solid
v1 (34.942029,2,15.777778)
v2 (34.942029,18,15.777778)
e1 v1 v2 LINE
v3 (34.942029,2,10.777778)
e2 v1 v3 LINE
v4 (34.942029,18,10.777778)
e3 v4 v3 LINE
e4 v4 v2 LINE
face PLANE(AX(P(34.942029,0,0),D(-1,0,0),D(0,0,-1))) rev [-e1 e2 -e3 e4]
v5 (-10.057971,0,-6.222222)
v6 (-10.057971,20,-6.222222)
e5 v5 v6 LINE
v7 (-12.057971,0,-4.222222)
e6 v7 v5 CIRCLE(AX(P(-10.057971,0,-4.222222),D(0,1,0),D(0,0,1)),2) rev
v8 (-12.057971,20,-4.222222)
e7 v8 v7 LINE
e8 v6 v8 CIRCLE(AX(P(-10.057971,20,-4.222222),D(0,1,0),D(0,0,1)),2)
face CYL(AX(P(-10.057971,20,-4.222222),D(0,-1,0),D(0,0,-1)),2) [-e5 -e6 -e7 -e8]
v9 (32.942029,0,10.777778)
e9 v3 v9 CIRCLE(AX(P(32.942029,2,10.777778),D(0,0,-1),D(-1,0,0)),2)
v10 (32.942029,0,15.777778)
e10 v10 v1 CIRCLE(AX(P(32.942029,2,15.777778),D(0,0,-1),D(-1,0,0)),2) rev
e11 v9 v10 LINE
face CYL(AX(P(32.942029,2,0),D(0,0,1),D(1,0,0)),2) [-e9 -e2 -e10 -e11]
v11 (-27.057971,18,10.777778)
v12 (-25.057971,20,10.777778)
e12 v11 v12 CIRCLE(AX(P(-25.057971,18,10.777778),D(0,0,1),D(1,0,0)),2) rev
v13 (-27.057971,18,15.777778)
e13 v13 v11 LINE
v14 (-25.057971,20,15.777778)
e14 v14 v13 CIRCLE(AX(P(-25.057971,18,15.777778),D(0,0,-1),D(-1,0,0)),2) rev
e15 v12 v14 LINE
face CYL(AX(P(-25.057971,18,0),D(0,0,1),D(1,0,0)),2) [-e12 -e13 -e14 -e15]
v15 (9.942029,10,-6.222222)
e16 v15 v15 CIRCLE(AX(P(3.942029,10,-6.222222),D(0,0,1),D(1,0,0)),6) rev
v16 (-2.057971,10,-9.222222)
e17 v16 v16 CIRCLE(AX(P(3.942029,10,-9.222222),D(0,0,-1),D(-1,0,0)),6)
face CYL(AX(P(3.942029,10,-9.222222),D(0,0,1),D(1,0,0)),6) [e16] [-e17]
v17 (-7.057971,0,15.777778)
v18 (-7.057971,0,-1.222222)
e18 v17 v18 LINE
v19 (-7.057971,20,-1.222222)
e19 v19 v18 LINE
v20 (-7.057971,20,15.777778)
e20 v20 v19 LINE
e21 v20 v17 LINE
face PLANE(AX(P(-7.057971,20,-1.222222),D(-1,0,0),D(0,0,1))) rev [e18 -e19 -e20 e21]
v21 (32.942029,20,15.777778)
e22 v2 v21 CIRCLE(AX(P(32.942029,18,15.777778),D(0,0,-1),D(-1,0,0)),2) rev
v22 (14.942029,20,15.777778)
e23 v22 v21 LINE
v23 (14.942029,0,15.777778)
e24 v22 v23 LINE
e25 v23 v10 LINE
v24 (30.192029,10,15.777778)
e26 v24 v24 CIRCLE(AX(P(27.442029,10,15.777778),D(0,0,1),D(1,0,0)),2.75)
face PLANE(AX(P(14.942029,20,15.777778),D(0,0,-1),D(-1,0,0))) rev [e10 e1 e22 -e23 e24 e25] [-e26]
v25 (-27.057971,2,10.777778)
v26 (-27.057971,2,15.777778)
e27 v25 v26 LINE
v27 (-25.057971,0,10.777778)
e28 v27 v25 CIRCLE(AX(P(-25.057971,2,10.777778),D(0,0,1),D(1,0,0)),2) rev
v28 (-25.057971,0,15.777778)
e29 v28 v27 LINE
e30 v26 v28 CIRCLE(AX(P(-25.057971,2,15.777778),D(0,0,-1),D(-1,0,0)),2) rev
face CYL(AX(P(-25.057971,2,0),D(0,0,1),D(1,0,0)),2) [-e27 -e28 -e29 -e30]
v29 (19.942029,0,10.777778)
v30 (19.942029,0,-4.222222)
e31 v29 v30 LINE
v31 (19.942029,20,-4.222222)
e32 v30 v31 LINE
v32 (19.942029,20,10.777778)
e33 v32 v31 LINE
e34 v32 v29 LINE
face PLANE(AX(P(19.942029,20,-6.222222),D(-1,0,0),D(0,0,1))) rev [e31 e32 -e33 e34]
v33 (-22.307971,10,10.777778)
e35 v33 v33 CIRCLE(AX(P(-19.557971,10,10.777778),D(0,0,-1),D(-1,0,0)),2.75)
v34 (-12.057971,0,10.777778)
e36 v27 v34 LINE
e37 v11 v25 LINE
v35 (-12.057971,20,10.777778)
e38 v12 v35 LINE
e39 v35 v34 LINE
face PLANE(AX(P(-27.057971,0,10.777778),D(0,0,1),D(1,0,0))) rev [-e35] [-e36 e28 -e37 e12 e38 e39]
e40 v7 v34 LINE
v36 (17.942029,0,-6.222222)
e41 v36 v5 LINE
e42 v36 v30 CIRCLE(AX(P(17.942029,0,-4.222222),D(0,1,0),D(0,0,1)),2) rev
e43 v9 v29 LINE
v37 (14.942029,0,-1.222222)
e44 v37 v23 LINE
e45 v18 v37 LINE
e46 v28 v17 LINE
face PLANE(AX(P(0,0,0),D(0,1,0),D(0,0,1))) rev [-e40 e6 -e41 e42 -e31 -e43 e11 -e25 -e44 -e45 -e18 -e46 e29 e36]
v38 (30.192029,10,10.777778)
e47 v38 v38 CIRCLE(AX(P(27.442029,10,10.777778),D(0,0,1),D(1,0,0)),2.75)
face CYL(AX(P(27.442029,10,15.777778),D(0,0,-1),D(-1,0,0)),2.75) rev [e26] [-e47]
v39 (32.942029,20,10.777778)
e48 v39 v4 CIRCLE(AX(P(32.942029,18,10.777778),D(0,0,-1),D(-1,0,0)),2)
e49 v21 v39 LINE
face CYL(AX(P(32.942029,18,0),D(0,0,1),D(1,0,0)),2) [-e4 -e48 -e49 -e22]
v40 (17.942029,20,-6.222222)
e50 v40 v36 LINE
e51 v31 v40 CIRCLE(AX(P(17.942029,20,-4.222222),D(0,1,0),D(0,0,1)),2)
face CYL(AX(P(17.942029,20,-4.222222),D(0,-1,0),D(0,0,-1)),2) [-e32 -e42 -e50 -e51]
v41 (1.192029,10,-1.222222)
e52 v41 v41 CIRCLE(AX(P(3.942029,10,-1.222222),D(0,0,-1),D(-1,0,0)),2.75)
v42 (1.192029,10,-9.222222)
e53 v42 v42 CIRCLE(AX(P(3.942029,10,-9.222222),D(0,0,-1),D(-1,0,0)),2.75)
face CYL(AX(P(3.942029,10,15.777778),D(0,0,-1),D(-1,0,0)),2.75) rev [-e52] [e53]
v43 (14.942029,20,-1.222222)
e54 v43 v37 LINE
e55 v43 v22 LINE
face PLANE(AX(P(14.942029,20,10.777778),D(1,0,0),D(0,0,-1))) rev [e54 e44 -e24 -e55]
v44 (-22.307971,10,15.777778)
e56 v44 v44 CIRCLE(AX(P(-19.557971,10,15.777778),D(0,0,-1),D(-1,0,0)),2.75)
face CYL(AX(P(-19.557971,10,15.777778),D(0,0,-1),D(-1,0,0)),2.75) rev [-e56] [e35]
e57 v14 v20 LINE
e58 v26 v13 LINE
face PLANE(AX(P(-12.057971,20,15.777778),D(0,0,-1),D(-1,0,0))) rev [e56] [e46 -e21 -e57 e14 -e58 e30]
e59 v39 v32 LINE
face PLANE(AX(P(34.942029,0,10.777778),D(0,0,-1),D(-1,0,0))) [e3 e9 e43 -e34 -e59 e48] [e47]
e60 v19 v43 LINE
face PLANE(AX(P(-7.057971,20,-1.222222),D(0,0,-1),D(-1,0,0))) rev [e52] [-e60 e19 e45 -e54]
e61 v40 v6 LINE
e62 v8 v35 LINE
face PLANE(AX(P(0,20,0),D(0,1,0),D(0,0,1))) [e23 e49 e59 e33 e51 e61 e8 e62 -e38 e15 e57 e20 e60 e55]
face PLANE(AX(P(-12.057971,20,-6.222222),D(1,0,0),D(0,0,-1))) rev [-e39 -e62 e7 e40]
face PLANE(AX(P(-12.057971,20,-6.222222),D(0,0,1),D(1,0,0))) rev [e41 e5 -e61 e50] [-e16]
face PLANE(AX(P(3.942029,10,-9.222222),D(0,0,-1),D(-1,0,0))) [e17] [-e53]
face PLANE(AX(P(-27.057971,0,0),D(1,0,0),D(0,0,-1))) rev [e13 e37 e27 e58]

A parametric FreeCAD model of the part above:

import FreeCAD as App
import Part
import Sketcher

V = App.Vector


def edges_at(feature, points):
    """Names of the edges that pass closest to the given points."""
    edges = feature.Shape.Edges
    near = lambda p: min(range(len(edges)), key=lambda i: edges[i].distToShape(Part.Vertex(*p))[0])
    return sorted({f"Edge{near(p) + 1}" for p in points})


def add_polygon(sketch, points):
    """Adds a closed chain of lines whose ends are joined by coincident constraints."""
    first, n = sketch.GeometryCount, len(points)
    for a, b in zip(points, points[1:] + points[:1]):
        sketch.addGeometry(Part.LineSegment(App.Vector(*a, 0), App.Vector(*b, 0)), False)
    for i in range(n):
        sketch.addConstraint(Sketcher.Constraint("Coincident", first + i, 2, first + (i + 1) % n, 1))

doc = App.newDocument("Part")
body = doc.addObject("PartDesign::Body", "Body")

sketch1 = body.newObject("Sketcher::SketchObject", "Sketch")
sketch1.AttachmentSupport = (doc.getObject("XZ_Plane"), [""])
sketch1.MapMode = "FlatFace"
add_polygon(sketch1, [(19.942029, -6.222222), (-12.057971, -6.222222), (-12.057971, 15.777778), (-7.057971, 15.777778), (-7.057971, -1.222222), (14.942029, -1.222222), (14.942029, 15.777778), (19.942029, 15.777778)])
sketch1.addConstraint(Sketcher.Constraint("Horizontal", 0))
sketch1.addConstraint(Sketcher.Constraint("Vertical", 1))
sketch1.addConstraint(Sketcher.Constraint("Horizontal", 2))
sketch1.addConstraint(Sketcher.Constraint("Vertical", 3))
sketch1.addConstraint(Sketcher.Constraint("Horizontal", 4))
sketch1.addConstraint(Sketcher.Constraint("Vertical", 5))
sketch1.addConstraint(Sketcher.Constraint("Horizontal", 6))
sketch1.addConstraint(Sketcher.Constraint("Vertical", 7))
sketch1.addConstraint(Sketcher.Constraint("Horizontal", 2, 2, 5, 2))
sketch1.addConstraint(Sketcher.Constraint("Equal", 2, 6))
sketch1.addConstraint(Sketcher.Constraint("Equal", 4, 1))
sketch1.addConstraint(Sketcher.Constraint("DistanceX", 0, 2, 0, 1, 32.0))
sketch1.addConstraint(Sketcher.Constraint("DistanceX", 2, 1, 2, 2, 5.0))
sketch1.addConstraint(Sketcher.Constraint("DistanceY", 3, 2, 3, 1, 17.0))
sketch1.addConstraint(Sketcher.Constraint("DistanceX", 0, 2, -1, 1, 12.057971))
sketch1.addConstraint(Sketcher.Constraint("DistanceY", 0, 2, -1, 1, 6.222222))
pad1 = body.newObject("PartDesign::Pad", "Pad")
pad1.Profile = sketch1
pad1.Length = 20
pad1.Reversed = True

sketch2 = body.newObject("Sketcher::SketchObject", "Sketch001")
sketch2.AttachmentSupport = (doc.getObject("XY_Plane"), [""])
sketch2.MapMode = "FlatFace"
sketch2.AttachmentOffset = App.Placement(V(0, 0, -6.222222), App.Rotation())
sketch2.addGeometry(Part.Circle(V(3.942029, 10, 0), V(0, 0, 1), 2.75), False)
sketch2.addConstraint(Sketcher.Constraint("Diameter", 0, 5.5))
sketch2.addConstraint(Sketcher.Constraint("DistanceY", -1, 1, 0, 3, 10.0))
sketch2.addConstraint(Sketcher.Constraint("DistanceX", -1, 1, 0, 3, 3.942029))
pocket1 = body.newObject("PartDesign::Pocket", "Pocket")
pocket1.Profile = sketch2
pocket1.Type = "ThroughAll"
pocket1.Reversed = True

sketch3 = body.newObject("Sketcher::SketchObject", "Sketch002")
sketch3.AttachmentSupport = (doc.getObject("YZ_Plane"), [""])
sketch3.MapMode = "FlatFace"
sketch3.AttachmentOffset = App.Placement(V(0, 0, -12.057971), App.Rotation())
add_polygon(sketch3, [(20, 10.777778), (0, 10.777778), (0, 15.777778), (20, 15.777778)])
sketch3.addConstraint(Sketcher.Constraint("Horizontal", 0))
sketch3.addConstraint(Sketcher.Constraint("Vertical", 1))
sketch3.addConstraint(Sketcher.Constraint("Horizontal", 2))
sketch3.addConstraint(Sketcher.Constraint("Vertical", 3))
sketch3.addConstraint(Sketcher.Constraint("PointOnObject", 0, 2, -2))
sketch3.addConstraint(Sketcher.Constraint("DistanceX", 0, 2, 0, 1, 20.0))
sketch3.addConstraint(Sketcher.Constraint("DistanceY", 1, 1, 1, 2, 5.0))
sketch3.addConstraint(Sketcher.Constraint("DistanceY", -1, 1, 0, 2, 10.777778))
pad2 = body.newObject("PartDesign::Pad", "Pad001")
pad2.Profile = sketch3
pad2.Length = 15
pad2.Reversed = True

sketch4 = body.newObject("Sketcher::SketchObject", "Sketch003")
sketch4.AttachmentSupport = (doc.getObject("XY_Plane"), [""])
sketch4.MapMode = "FlatFace"
sketch4.AttachmentOffset = App.Placement(V(0, 0, 10.777778), App.Rotation())
sketch4.addGeometry(Part.Circle(V(-19.557971, 10, 0), V(0, 0, 1), 2.75), False)
sketch4.addConstraint(Sketcher.Constraint("Diameter", 0, 5.5))
sketch4.addConstraint(Sketcher.Constraint("DistanceY", -1, 1, 0, 3, 10.0))
sketch4.addConstraint(Sketcher.Constraint("DistanceX", 0, 3, -1, 1, 19.557971))
pocket2 = body.newObject("PartDesign::Pocket", "Pocket001")
pocket2.Profile = sketch4
pocket2.Type = "ThroughAll"
pocket2.Reversed = True
doc.recompute()

datumplane = body.newObject("PartDesign::Plane", "DatumPlane")
datumplane.AttachmentSupport = (doc.getObject("YZ_Plane"), [""])
datumplane.MapMode = "FlatFace"
datumplane.AttachmentOffset = App.Placement(V(0, 0, 3.942029), App.Rotation())
mirrored = body.newObject("PartDesign::Mirrored", "Mirrored")
mirrored.Originals = [pad2, pocket2]
mirrored.MirrorPlane = (datumplane, [""])
body.Tip = mirrored
doc.recompute()

fillet = body.newObject("PartDesign::Fillet", "Fillet")
fillet.Base = (mirrored, edges_at(mirrored, [
    (-12.058, 10, -6.222),
    (19.942, 10, -6.222),
    (-27.058, 0, 13.278),
    (-27.058, 20, 13.278),
    (34.942, 0, 13.278),
    (34.942, 20, 13.278),
]))
fillet.Radius = 2

sketch5 = body.newObject("Sketcher::SketchObject", "Sketch004")
sketch5.AttachmentSupport = (doc.getObject("XY_Plane"), [""])
sketch5.MapMode = "FlatFace"
sketch5.AttachmentOffset = App.Placement(V(0, 0, -9.222222), App.Rotation())
sketch5.addGeometry(Part.Circle(V(3.942029, 10, 0), V(0, 0, 1), 6), False)
sketch5.addGeometry(Part.Circle(V(3.942029, 10, 0), V(0, 0, 1), 2.75), False)
sketch5.addConstraint(Sketcher.Constraint("Coincident", 1, 3, 0, 3))
sketch5.addConstraint(Sketcher.Constraint("Diameter", 0, 12.0))
sketch5.addConstraint(Sketcher.Constraint("Diameter", 1, 5.5))
sketch5.addConstraint(Sketcher.Constraint("DistanceY", -1, 1, 0, 3, 10.0))
sketch5.addConstraint(Sketcher.Constraint("DistanceX", -1, 1, 0, 3, 3.942029))
pad3 = body.newObject("PartDesign::Pad", "Pad002")
pad3.Profile = sketch5
pad3.Length = 3

doc.recompute()
